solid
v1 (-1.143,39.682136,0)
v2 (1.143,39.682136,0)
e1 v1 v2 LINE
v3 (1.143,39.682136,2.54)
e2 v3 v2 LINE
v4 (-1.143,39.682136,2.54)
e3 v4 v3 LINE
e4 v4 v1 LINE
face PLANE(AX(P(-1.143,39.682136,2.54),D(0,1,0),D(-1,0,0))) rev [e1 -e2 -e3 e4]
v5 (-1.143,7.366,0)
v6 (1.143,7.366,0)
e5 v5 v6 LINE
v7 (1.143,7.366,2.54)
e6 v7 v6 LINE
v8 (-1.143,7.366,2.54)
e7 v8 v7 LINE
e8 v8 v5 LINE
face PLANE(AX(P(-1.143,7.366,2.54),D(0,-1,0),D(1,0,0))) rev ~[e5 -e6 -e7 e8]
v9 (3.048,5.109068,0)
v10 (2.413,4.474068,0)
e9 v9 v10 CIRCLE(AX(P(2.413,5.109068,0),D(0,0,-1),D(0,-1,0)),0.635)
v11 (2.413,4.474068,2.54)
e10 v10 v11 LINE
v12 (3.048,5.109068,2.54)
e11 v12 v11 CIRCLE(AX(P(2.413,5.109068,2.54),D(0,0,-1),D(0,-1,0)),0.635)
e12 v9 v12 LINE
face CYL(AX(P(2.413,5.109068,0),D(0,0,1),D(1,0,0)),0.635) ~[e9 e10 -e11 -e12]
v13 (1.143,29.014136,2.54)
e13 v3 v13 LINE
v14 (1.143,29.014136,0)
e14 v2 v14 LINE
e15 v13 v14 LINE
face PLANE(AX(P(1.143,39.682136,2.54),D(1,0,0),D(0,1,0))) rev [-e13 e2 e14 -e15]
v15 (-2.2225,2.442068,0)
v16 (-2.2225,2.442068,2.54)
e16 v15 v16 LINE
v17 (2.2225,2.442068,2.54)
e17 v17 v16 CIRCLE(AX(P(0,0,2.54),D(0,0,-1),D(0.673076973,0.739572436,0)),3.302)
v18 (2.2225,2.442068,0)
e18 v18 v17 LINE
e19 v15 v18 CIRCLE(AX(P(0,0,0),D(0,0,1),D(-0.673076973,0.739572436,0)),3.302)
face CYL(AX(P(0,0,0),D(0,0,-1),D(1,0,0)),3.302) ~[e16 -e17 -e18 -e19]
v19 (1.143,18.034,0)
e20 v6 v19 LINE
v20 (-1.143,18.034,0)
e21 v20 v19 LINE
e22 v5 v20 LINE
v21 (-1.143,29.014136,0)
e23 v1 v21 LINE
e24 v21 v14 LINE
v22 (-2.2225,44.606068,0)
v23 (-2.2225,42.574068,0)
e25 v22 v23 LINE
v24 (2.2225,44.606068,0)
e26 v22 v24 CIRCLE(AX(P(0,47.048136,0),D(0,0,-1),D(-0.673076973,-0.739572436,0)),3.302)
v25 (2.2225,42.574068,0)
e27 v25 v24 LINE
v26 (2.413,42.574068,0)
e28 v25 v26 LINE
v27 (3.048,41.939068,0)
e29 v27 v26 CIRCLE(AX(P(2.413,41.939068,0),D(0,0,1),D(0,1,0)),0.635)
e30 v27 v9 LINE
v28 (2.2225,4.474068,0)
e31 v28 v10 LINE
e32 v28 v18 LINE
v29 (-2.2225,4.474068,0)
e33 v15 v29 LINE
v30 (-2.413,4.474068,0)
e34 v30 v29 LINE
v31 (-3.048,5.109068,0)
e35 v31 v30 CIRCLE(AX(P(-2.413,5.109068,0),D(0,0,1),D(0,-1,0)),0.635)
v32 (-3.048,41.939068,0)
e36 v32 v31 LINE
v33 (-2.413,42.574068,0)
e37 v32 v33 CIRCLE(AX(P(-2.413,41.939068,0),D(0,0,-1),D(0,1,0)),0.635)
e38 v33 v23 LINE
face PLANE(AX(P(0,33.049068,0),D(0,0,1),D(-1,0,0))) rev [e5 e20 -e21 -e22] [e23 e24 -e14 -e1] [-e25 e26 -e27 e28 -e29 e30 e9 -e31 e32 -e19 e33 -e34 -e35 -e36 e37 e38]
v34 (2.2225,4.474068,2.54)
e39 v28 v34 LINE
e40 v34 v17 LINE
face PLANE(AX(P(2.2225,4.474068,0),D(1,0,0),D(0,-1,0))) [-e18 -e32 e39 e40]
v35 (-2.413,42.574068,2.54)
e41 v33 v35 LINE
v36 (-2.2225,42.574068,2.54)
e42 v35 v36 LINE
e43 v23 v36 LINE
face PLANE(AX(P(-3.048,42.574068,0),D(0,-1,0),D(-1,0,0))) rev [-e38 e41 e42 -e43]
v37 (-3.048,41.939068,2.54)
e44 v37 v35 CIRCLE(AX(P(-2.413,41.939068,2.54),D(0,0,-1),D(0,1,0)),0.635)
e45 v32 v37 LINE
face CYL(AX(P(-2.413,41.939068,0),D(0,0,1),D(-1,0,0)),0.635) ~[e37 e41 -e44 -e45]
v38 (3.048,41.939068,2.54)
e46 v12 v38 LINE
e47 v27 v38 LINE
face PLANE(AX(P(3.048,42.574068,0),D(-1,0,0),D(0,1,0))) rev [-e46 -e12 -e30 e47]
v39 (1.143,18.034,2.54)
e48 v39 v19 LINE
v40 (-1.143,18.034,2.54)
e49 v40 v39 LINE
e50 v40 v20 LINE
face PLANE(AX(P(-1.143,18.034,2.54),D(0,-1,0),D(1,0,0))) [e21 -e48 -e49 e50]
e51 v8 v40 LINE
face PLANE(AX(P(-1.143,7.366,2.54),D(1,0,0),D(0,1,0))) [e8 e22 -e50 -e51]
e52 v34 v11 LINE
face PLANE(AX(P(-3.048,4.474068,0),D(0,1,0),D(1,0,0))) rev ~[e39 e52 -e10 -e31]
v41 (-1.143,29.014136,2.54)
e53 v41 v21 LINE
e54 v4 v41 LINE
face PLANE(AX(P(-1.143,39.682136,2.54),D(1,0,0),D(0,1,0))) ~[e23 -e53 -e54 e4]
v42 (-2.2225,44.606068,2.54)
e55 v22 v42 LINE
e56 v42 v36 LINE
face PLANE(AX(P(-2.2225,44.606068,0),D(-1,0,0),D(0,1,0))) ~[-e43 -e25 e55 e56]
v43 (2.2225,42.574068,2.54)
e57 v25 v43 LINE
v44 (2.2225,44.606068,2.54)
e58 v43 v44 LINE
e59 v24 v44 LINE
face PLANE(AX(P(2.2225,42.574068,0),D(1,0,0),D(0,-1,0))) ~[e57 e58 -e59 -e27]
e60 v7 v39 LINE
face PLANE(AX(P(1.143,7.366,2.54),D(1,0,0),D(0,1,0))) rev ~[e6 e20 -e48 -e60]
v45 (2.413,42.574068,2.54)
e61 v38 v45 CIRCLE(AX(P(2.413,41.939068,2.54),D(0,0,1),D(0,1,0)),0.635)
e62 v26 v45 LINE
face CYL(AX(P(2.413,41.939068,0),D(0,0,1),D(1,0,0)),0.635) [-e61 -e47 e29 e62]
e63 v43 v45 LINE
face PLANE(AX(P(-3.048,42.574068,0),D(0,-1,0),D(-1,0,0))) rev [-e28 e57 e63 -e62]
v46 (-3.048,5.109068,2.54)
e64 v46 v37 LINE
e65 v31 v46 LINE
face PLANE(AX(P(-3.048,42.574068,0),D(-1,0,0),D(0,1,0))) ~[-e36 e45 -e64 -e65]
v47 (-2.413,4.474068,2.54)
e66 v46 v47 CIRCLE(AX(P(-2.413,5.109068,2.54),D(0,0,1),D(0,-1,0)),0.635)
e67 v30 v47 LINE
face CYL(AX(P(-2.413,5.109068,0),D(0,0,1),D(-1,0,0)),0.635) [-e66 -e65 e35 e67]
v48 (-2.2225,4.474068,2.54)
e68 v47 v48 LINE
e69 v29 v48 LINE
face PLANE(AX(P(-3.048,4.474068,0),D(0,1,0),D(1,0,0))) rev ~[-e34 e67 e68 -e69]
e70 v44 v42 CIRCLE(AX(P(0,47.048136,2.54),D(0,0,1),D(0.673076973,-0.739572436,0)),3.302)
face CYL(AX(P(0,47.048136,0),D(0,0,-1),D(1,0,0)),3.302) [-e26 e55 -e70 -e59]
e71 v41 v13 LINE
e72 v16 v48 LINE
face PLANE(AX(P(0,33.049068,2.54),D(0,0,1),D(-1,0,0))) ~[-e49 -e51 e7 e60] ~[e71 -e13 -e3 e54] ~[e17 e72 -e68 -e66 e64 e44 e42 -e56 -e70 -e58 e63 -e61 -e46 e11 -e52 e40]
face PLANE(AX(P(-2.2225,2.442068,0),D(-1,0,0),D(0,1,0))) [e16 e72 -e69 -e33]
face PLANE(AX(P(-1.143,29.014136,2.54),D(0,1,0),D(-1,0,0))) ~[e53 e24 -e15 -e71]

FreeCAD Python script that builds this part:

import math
import FreeCAD as App
import Part
import Sketcher
from FreeCAD import Vector
Q = App.Units.Quantity


def edges_at(feature, points):
    """Names of the edges that pass closest to the given points."""
    edges = feature.Shape.Edges
    near = lambda p: min(range(len(edges)), key=lambda i: edges[i].distToShape(Part.Vertex(*p))[0])
    return sorted({f"Edge{near(p) + 1}" for p in points})

doc = App.newDocument("Part")
params = doc.addObject("Spreadsheet::Sheet", "Params")
for row, (alias, value) in enumerate([
    ("sketch1_diameter", "0.26 in"),
    ("pad1_length", "0.1 in"),
    ("sketch2_radius", "0.13 in"),
    ("sketch2_height", "0.08 in"),
    ("sketch2_width", "0.175 in"),
    ("pad2_length", "0.1 in"),
    ("sketch3_width", "0.24 in"),
    ("sketch3_height", "0.75 in"),
    ("pad3_length", "0.1 in"),
    ("fillet_radius", "0.025 in"),
    ("sketch4_width", "0.09 in"),
    ("sketch4_height", "0.42 in"),
    ("pocket1_length", "1 in"),
], start=1):
    params.set(f"A{row}", alias)
    params.set(f"B{row}", "=" + value)
    params.setAlias(f"B{row}", alias)

body = doc.addObject("PartDesign::Body", "Body")

# Sketch on XY plane
sketch1 = body.newObject("Sketcher::SketchObject", "Sketch")
sketch1.AttachmentSupport = (doc.getObject("XY_Plane"), [""])
sketch1.MapMode = "FlatFace"
sketch1.addGeometry(Part.Circle(Vector(0, 0, 0), Vector(0, 0, 1), 3.3), False)
sketch1.addConstraint([
    Sketcher.Constraint("Coincident", 0, 3, -1, 1),
    Sketcher.Constraint("Diameter", 0, Q("0.26 in")),
])
sketch1.setExpression("Constraints[1]", "Params.sketch1_diameter")
pad1 = body.newObject("PartDesign::Pad", "Pad")
pad1.Profile = sketch1
pad1.setExpression("Length", "Params.pad1_length")

# Sketch on XY plane
sketch2 = body.newObject("Sketcher::SketchObject", "Sketch001")
sketch2.AttachmentSupport = (doc.getObject("XY_Plane"), [""])
sketch2.MapMode = "FlatFace"
sketch2.addGeometry([
    Part.ArcOfCircle(Part.Circle(Vector(0, 0, 0), Vector(0, 0, 1), 3.3), math.radians(48), math.radians(132)),
    Part.LineSegment(Vector(-2.2, 2.4, 0), Vector(-2.2, 4.5, 0)),
    Part.LineSegment(Vector(-2.2, 4.5, 0), Vector(2.2, 4.5, 0)),
    Part.LineSegment(Vector(2.2, 4.5, 0), Vector(2.2, 2.4, 0)),
], False)
sketch2.addConstraint([
    Sketcher.Constraint("Coincident", 0, 2, 1, 1),
    Sketcher.Constraint("Coincident", 1, 2, 2, 1),
    Sketcher.Constraint("Coincident", 2, 2, 3, 1),
    Sketcher.Constraint("Coincident", 3, 2, 0, 1),
    Sketcher.Constraint("Vertical", 1),
    Sketcher.Constraint("Horizontal", 2),
    Sketcher.Constraint("Vertical", 3),
    Sketcher.Constraint("Coincident", 0, 3, -1, 1),
    Sketcher.Constraint("Horizontal", 0, 2, 3, 2),
    Sketcher.Constraint("Radius", 0, Q("0.13 in")),
    Sketcher.Constraint("DistanceY", 1, 1, 1, 2, Q("0.08 in")),
    Sketcher.Constraint("DistanceX", 2, 1, 2, 2, Q("0.175 in")),
])
sketch2.setExpression("Constraints[9]", "Params.sketch2_radius")
sketch2.setExpression("Constraints[10]", "Params.sketch2_height")
sketch2.setExpression("Constraints[11]", "Params.sketch2_width")
pad2 = body.newObject("PartDesign::Pad", "Pad001")
pad2.Profile = sketch2
pad2.setExpression("Length", "Params.pad2_length")

# Sketch on XY plane
sketch3 = body.newObject("Sketcher::SketchObject", "Sketch002")
sketch3.AttachmentSupport = (doc.getObject("XY_Plane"), [""])
sketch3.MapMode = "FlatFace"
sketch3.addGeometry([
    Part.LineSegment(Vector(-3, 24, 0), Vector(-3, 4, 0)),
    Part.LineSegment(Vector(-3, 4, 0), Vector(3, 4, 0)),
    Part.LineSegment(Vector(3, 4, 0), Vector(3, 24, 0)),
    Part.LineSegment(Vector(3, 24, 0), Vector(-3, 24, 0)),
], False)
sketch3.addConstraint([
    Sketcher.Constraint("Coincident", 0, 2, 1, 1),
    Sketcher.Constraint("Coincident", 1, 2, 2, 1),
    Sketcher.Constraint("Coincident", 2, 2, 3, 1),
    Sketcher.Constraint("Coincident", 3, 2, 0, 1),
    Sketcher.Constraint("Vertical", 0),
    Sketcher.Constraint("Horizontal", 1),
    Sketcher.Constraint("Vertical", 2),
    Sketcher.Constraint("Horizontal", 3),
    Sketcher.Constraint("DistanceX", 1, 1, 1, 2, Q("0.24 in")),
    Sketcher.Constraint("DistanceY", 0, 2, 0, 1, Q("0.75 in")),
    Sketcher.Constraint("DistanceX", 0, 2, -1, 1, Q("0.12 in")),
    Sketcher.Constraint("DistanceY", -1, 1, 2, 2, Q("23.524068 mm")),
])
sketch3.setExpression("Constraints[8]", "Params.sketch3_width")
sketch3.setExpression("Constraints[9]", "Params.sketch3_height")
pad3 = body.newObject("PartDesign::Pad", "Pad002")
pad3.Profile = sketch3
pad3.setExpression("Length", "Params.pad3_length")
doc.recompute()

fillet = body.newObject("PartDesign::Fillet", "Fillet")
fillet.Base = (pad3, edges_at(pad3, [(3.048, 4.474, 1.27), (-3.048, 4.474, 1.27)]))
fillet.setExpression("Radius", "Params.fillet_radius")

# Sketch on XY plane
sketch4 = body.newObject("Sketcher::SketchObject", "Sketch003")
sketch4.AttachmentSupport = (doc.getObject("XY_Plane"), [""])
sketch4.MapMode = "FlatFace"
sketch4.AttachmentOffset = App.Placement(Vector(0, 0, 0.1 * 25.4), App.Rotation())
sketch4.addGeometry([
    Part.LineSegment(Vector(-1.1, 18, 0), Vector(-1.1, 7.4, 0)),
    Part.LineSegment(Vector(-1.1, 7.4, 0), Vector(1.1, 7.4, 0)),
    Part.LineSegment(Vector(1.1, 7.4, 0), Vector(1.1, 18, 0)),
    Part.LineSegment(Vector(1.1, 18, 0), Vector(-1.1, 18, 0)),
], False)
sketch4.addConstraint([
    Sketcher.Constraint("Coincident", 0, 2, 1, 1),
    Sketcher.Constraint("Coincident", 1, 2, 2, 1),
    Sketcher.Constraint("Coincident", 2, 2, 3, 1),
    Sketcher.Constraint("Coincident", 3, 2, 0, 1),
    Sketcher.Constraint("Vertical", 0),
    Sketcher.Constraint("Horizontal", 1),
    Sketcher.Constraint("Vertical", 2),
    Sketcher.Constraint("Horizontal", 3),
    Sketcher.Constraint("DistanceX", 1, 1, 1, 2, Q("0.09 in")),
    Sketcher.Constraint("DistanceY", 0, 2, 0, 1, Q("0.42 in")),
    Sketcher.Constraint("DistanceY", -1, 1, 0, 2, Q("0.29 in")),
    Sketcher.Constraint("DistanceX", 0, 2, -1, 1, Q("0.045 in")),
])
sketch4.setExpression("Constraints[8]", "Params.sketch4_width")
sketch4.setExpression("Constraints[9]", "Params.sketch4_height")
pocket1 = body.newObject("PartDesign::Pocket", "Pocket")
pocket1.Profile = sketch4
pocket1.setExpression("Length", "Params.pocket1_length")
body2 = doc.addObject("PartDesign::Body", "Body001")
doc.recompute()

body2.BaseFeature = body
doc.recompute()

mirroring = doc.addObject("Part::Mirroring", "Mirroring")
mirroring.Source = body
mirroring.Base = Vector(0, 23.524068, 1.27)
mirroring.Normal = Vector(0, 1, 0)
body3 = doc.addObject("PartDesign::Body", "Body002")
body3.BaseFeature = mirroring
boolean = body2.newObject("PartDesign::Boolean", "Boolean")
boolean.Type = "Fuse"
boolean.addObjects([body3])
doc.recompute()
mirroring.Visibility = False

doc.recompute()
